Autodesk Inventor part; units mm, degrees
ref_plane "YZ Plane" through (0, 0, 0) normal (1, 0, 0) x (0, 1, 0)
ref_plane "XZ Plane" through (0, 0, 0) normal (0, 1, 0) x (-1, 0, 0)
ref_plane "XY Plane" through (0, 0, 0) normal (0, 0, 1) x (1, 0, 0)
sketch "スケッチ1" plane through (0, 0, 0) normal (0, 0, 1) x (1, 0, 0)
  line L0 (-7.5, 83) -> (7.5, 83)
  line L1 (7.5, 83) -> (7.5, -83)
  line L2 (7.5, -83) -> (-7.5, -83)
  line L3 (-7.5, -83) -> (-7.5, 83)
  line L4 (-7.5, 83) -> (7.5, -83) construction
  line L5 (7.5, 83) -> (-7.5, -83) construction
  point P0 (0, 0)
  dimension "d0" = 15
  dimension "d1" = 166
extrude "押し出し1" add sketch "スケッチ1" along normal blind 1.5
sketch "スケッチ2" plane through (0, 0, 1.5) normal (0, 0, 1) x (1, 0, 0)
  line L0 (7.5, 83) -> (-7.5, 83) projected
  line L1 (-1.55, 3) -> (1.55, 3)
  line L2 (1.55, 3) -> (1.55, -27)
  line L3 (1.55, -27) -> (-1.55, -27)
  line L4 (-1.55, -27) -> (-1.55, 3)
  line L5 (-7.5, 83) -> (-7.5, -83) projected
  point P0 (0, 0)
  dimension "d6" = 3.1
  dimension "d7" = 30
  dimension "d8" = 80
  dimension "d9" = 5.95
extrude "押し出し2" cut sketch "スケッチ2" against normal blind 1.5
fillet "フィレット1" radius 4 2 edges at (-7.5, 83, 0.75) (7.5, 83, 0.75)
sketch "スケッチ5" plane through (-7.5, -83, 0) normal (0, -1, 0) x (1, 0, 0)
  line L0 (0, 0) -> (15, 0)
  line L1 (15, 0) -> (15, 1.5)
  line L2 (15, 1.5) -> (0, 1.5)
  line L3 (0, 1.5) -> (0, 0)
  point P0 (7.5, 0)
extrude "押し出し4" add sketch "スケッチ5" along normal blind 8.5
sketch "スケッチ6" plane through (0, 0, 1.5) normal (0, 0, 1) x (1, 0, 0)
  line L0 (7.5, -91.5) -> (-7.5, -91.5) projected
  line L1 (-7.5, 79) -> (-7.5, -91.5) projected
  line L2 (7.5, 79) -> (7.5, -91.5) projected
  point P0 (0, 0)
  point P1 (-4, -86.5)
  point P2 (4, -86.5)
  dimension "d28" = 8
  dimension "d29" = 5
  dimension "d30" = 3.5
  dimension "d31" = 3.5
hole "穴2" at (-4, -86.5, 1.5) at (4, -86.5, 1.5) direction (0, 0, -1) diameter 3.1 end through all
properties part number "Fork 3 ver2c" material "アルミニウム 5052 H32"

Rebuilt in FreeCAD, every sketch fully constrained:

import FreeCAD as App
import Part
import Sketcher

V = App.Vector


def edges_at(feature, points):
    """Names of the edges that pass closest to the given points."""
    edges = feature.Shape.Edges
    near = lambda p: min(range(len(edges)), key=lambda i: edges[i].distToShape(Part.Vertex(*p))[0])
    return sorted({f"Edge{near(p) + 1}" for p in points})


def add_polygon(sketch, points):
    """Adds a closed chain of lines whose ends are joined by coincident constraints."""
    first, n = sketch.GeometryCount, len(points)
    for a, b in zip(points, points[1:] + points[:1]):
        sketch.addGeometry(Part.LineSegment(App.Vector(*a, 0), App.Vector(*b, 0)), False)
    for i in range(n):
        sketch.addConstraint(Sketcher.Constraint("Coincident", first + i, 2, first + (i + 1) % n, 1))

doc = App.newDocument("Part")
body = doc.addObject("PartDesign::Body", "Body")

# Sketch on XY plane
sketch1 = body.newObject("Sketcher::SketchObject", "Sketch")
sketch1.AttachmentSupport = (doc.getObject("XY_Plane"), [""])
sketch1.MapMode = "FlatFace"
add_polygon(sketch1, [(7.5, 83), (-7.5, 83), (-7.5, -83), (7.5, -83)])  # lines 0-3
sketch1.addConstraint([
    Sketcher.Constraint("Horizontal", 0),
    Sketcher.Constraint("Vertical", 1),
    Sketcher.Constraint("Horizontal", 2),
    Sketcher.Constraint("Vertical", 3),
    Sketcher.Constraint("Symmetric", 0, 2, 2, 2, -1, 1),
    Sketcher.Constraint("DistanceX", 0, 2, 0, 1, 15.0),
    Sketcher.Constraint("DistanceY", 1, 2, 1, 1, 166.0),
])
pad1 = body.newObject("PartDesign::Pad", "Pad")
pad1.Profile = sketch1
pad1.Length = 1.5

# Sketch on XY plane
sketch2 = body.newObject("Sketcher::SketchObject", "Sketch001")
sketch2.AttachmentSupport = (doc.getObject("XY_Plane"), [""])
sketch2.MapMode = "FlatFace"
sketch2.AttachmentOffset = App.Placement(V(0, 0, 1.5), App.Rotation())
add_polygon(sketch2, [(1.55, 3), (-1.55, 3), (-1.55, -27), (1.55, -27)])  # lines 0-3
sketch2.addConstraint([
    Sketcher.Constraint("Horizontal", 0),
    Sketcher.Constraint("Vertical", 1),
    Sketcher.Constraint("Horizontal", 2),
    Sketcher.Constraint("Vertical", 3),
    Sketcher.Constraint("DistanceY", 1, 2, 1, 1, 30.0),
    Sketcher.Constraint("DistanceX", 0, 2, 0, 1, 3.1),
    Sketcher.Constraint("DistanceY", -1, 1, 0, 2, 3.0),
    Sketcher.Constraint("DistanceX", 0, 2, -1, 1, 1.55),
])
pocket1 = body.newObject("PartDesign::Pocket", "Pocket")
pocket1.Profile = sketch2
pocket1.Length = 1.5
doc.recompute()

fillet = body.newObject("PartDesign::Fillet", "Fillet")
fillet.Base = (pocket1, edges_at(pocket1, [(-7.5, 83, 0.75), (7.5, 83, 0.75)]))
fillet.Radius = 4

# Sketch on XZ plane
sketch3 = body.newObject("Sketcher::SketchObject", "Sketch002")
sketch3.AttachmentSupport = (doc.getObject("XZ_Plane"), [""])
sketch3.MapMode = "FlatFace"
sketch3.AttachmentOffset = App.Placement(V(0, 0, 83), App.Rotation())
add_polygon(sketch3, [(-7.5, 1.5), (-7.5, 0), (7.5, 0), (7.5, 1.5)])  # lines 0-3
sketch3.addConstraint([
    Sketcher.Constraint("Vertical", 0),
    Sketcher.Constraint("Horizontal", 1),
    Sketcher.Constraint("Vertical", 2),
    Sketcher.Constraint("Horizontal", 3),
    Sketcher.Constraint("Symmetric", 0, 2, 1, 2, -1, 1),
    Sketcher.Constraint("DistanceX", 1, 1, 1, 2, 15.0),
    Sketcher.Constraint("DistanceY", 0, 2, 0, 1, 1.5),
])
pad2 = body.newObject("PartDesign::Pad", "Pad001")
pad2.Profile = sketch3
pad2.Length = 8.5

# Sketch on XY plane
sketch4 = body.newObject("Sketcher::SketchObject", "Sketch003")
sketch4.AttachmentSupport = (doc.getObject("XY_Plane"), [""])
sketch4.MapMode = "FlatFace"
sketch4.AttachmentOffset = App.Placement(V(0, 0, 1.5), App.Rotation())
sketch4.addGeometry([
    Part.Circle(V(-4, -86.5, 0), V(0, 0, 1), 1.55),
    Part.Circle(V(4, -86.5, 0), V(0, 0, 1), 1.55),
], False)
sketch4.addConstraint([
    Sketcher.Constraint("Equal", 0, 1),
    Sketcher.Constraint("Symmetric", 0, 3, 1, 3, -2),
    Sketcher.Constraint("Diameter", 0, 3.1),
    Sketcher.Constraint("DistanceX", 0, 3, -1, 1, 4.0),
    Sketcher.Constraint("DistanceY", 0, 3, -1, 1, 86.5),
])
doc.recompute()
hole = body.newObject("PartDesign::Hole", "Hole")
hole.Profile = sketch4
hole.ThreadType = "None"
hole.Diameter = 3.1
hole.DepthType = "ThroughAll"

doc.recompute()
